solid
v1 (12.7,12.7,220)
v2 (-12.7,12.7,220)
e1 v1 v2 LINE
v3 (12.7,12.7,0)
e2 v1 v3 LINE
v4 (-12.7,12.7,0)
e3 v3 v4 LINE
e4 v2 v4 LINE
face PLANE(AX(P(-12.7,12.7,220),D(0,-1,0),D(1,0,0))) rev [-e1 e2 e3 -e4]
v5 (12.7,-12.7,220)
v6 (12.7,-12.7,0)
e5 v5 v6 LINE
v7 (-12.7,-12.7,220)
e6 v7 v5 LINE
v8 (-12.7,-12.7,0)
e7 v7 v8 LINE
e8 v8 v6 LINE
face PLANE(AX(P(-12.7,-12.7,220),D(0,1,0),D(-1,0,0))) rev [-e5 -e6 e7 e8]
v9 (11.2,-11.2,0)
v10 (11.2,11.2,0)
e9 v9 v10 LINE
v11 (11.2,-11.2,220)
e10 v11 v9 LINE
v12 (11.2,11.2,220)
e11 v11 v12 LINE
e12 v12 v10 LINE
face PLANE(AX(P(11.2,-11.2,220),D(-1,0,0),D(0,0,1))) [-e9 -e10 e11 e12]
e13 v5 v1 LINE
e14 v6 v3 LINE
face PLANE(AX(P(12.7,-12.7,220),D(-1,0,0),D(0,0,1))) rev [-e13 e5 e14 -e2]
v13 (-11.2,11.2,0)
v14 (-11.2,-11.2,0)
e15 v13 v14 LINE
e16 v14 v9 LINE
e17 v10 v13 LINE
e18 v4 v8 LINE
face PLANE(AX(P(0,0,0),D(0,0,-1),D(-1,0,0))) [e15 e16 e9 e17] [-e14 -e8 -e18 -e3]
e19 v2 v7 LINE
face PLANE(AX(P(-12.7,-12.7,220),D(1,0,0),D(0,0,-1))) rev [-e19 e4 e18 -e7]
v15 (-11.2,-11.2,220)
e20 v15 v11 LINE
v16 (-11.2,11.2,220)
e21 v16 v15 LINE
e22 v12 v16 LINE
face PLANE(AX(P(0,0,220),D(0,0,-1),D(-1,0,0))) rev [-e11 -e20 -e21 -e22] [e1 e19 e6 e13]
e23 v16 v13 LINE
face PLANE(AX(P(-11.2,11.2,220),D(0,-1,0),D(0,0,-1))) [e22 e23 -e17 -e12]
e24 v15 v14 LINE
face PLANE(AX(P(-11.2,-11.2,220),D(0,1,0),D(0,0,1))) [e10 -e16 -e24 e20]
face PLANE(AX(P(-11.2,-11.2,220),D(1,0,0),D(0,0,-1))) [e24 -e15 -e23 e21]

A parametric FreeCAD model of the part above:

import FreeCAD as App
import Part
import Sketcher
from FreeCAD import Vector

doc = App.newDocument("Part")
body = doc.addObject("PartDesign::Body", "Body")

# Sketch on XY plane
sketch1 = body.newObject("Sketcher::SketchObject", "Sketch")
sketch1.AttachmentSupport = (doc.getObject("XY_Plane"), [""])
sketch1.MapMode = "FlatFace"
sketch1.addGeometry(Part.LineSegment(Vector(-12.7, 12.7, 0), Vector(-12.7, -12.7, 0)), False)
sketch1.addGeometry(Part.LineSegment(Vector(-12.7, -12.7, 0), Vector(12.7, -12.7, 0)), False)
sketch1.addGeometry(Part.LineSegment(Vector(12.7, -12.7, 0), Vector(12.7, 12.7, 0)), False)
sketch1.addGeometry(Part.LineSegment(Vector(12.7, 12.7, 0), Vector(-12.7, 12.7, 0)), False)
sketch1.addGeometry(Part.LineSegment(Vector(11.2, -11.2, 0), Vector(-11.2, -11.2, 0)), False)
sketch1.addGeometry(Part.LineSegment(Vector(-11.2, -11.2, 0), Vector(-11.2, 11.2, 0)), False)
sketch1.addGeometry(Part.LineSegment(Vector(-11.2, 11.2, 0), Vector(11.2, 11.2, 0)), False)
sketch1.addGeometry(Part.LineSegment(Vector(11.2, 11.2, 0), Vector(11.2, -11.2, 0)), False)
sketch1.addConstraint(Sketcher.Constraint("Coincident", 0, 2, 1, 1))
sketch1.addConstraint(Sketcher.Constraint("Coincident", 1, 2, 2, 1))
sketch1.addConstraint(Sketcher.Constraint("Coincident", 2, 2, 3, 1))
sketch1.addConstraint(Sketcher.Constraint("Coincident", 3, 2, 0, 1))
sketch1.addConstraint(Sketcher.Constraint("Coincident", 4, 2, 5, 1))
sketch1.addConstraint(Sketcher.Constraint("Coincident", 5, 2, 6, 1))
sketch1.addConstraint(Sketcher.Constraint("Coincident", 6, 2, 7, 1))
sketch1.addConstraint(Sketcher.Constraint("Coincident", 7, 2, 4, 1))
sketch1.addConstraint(Sketcher.Constraint("Vertical", 0))
sketch1.addConstraint(Sketcher.Constraint("Horizontal", 1))
sketch1.addConstraint(Sketcher.Constraint("Vertical", 2))
sketch1.addConstraint(Sketcher.Constraint("Horizontal", 3))
sketch1.addConstraint(Sketcher.Constraint("Horizontal", 4))
sketch1.addConstraint(Sketcher.Constraint("Vertical", 5))
sketch1.addConstraint(Sketcher.Constraint("Horizontal", 6))
sketch1.addConstraint(Sketcher.Constraint("Vertical", 7))
sketch1.addConstraint(Sketcher.Constraint("Symmetric", 0, 2, 2, 2, -1, 1))
sketch1.addConstraint(Sketcher.Constraint("Symmetric", 4, 2, 6, 2, -1, 1))
sketch1.addConstraint(Sketcher.Constraint("Equal", 3, 0))
sketch1.addConstraint(Sketcher.Constraint("Equal", 6, 5))
sketch1.addConstraint(Sketcher.Constraint("DistanceX", 1, 1, 1, 2, 25.4))
sketch1.addConstraint(Sketcher.Constraint("DistanceX", 4, 2, 4, 1, 22.4))
pad1 = body.newObject("PartDesign::Pad", "Pad")
pad1.Profile = sketch1
pad1.Length = 220

doc.recompute()
